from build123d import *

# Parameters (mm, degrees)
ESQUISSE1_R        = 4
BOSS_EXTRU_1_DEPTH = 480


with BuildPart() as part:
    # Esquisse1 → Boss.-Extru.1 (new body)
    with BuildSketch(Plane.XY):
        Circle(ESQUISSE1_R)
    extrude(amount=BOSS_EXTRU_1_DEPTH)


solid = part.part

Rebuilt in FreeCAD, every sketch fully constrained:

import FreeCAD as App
import Part
import Sketcher

V = App.Vector
Q = App.Units.Quantity

doc = App.newDocument("Part")
body = doc.addObject("PartDesign::Body", "Body")

sketch1 = body.newObject("Sketcher::SketchObject", "Sketch")
sketch1.AttachmentSupport = (doc.getObject("XY_Plane"), [""])
sketch1.MapMode = "FlatFace"
sketch1.addGeometry(Part.Circle(V(0, 0, 0), V(0, 0, 1), 4), False)
sketch1.addConstraint([
    Sketcher.Constraint("Coincident", 0, 3, -1, 1),
    Sketcher.Constraint("Diameter", 0, Q("8 mm")),
])
pad1 = body.newObject("PartDesign::Pad", "Pad")
pad1.Profile = sketch1
pad1.Length = 480

doc.recompute()
